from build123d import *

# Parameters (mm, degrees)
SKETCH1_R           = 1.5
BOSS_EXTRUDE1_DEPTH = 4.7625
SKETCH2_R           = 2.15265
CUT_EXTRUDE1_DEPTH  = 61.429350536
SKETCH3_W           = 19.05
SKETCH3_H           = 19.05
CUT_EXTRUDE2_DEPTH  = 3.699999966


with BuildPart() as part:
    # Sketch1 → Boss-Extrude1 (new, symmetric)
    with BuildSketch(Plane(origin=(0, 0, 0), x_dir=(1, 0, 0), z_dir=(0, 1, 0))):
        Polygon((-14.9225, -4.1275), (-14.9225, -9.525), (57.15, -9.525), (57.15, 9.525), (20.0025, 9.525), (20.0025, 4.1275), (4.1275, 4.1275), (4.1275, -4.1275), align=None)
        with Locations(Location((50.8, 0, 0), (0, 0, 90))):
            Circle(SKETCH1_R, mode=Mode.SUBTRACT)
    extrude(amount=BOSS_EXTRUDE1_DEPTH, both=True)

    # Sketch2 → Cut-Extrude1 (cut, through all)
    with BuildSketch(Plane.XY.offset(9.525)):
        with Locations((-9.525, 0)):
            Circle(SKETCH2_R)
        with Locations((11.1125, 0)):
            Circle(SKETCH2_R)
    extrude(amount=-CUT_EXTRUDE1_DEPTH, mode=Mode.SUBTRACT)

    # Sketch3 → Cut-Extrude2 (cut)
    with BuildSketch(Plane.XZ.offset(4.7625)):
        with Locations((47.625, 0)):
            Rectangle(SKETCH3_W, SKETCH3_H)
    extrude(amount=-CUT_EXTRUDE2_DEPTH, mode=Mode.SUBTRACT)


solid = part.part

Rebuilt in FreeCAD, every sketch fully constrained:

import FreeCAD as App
import Part
import Sketcher
Q = App.Units.Quantity

doc = App.newDocument("Part")
body = doc.addObject("PartDesign::Body", "Body")

sketch1 = doc.addObject("Sketcher::SketchObject", "Sketch")
body.addObject(sketch1)
sketch1.AttachmentSupport = (doc.XZ_Plane, [""])
sketch1.MapMode = "FlatFace"
sketch1.addGeometry([
    Part.LineSegment(App.Vector(-14.9225, 4.1275, 0), App.Vector(-14.9225, 9.525, 0)),
    Part.LineSegment(App.Vector(-14.9225, 9.525, 0), App.Vector(57.15, 9.525, 0)),
    Part.LineSegment(App.Vector(57.15, 9.525, 0), App.Vector(57.15, -9.525, 0)),
    Part.LineSegment(App.Vector(57.15, -9.525, 0), App.Vector(20.0025, -9.525, 0)),
    Part.LineSegment(App.Vector(20.0025, -9.525, 0), App.Vector(20.0025, -4.1275, 0)),
    Part.LineSegment(App.Vector(20.0025, -4.1275, 0), App.Vector(4.1275, -4.1275, 0)),
    Part.LineSegment(App.Vector(4.1275, -4.1275, 0), App.Vector(4.1275, 4.1275, 0)),
    Part.LineSegment(App.Vector(4.1275, 4.1275, 0), App.Vector(-14.9225, 4.1275, 0)),
    Part.Circle(App.Vector(50.8, 0, 0), App.Vector(0, 0, 1), 1.5),
], False)
sketch1.addConstraint([
    Sketcher.Constraint("Coincident", 0, 2, 1, 1),
    Sketcher.Constraint("Coincident", 1, 2, 2, 1),
    Sketcher.Constraint("Coincident", 2, 2, 3, 1),
    Sketcher.Constraint("Coincident", 3, 2, 4, 1),
    Sketcher.Constraint("Coincident", 4, 2, 5, 1),
    Sketcher.Constraint("Coincident", 5, 2, 6, 1),
    Sketcher.Constraint("Coincident", 6, 2, 7, 1),
    Sketcher.Constraint("Coincident", 7, 2, 0, 1),
    Sketcher.Constraint("Vertical", 0),
    Sketcher.Constraint("Horizontal", 1),
    Sketcher.Constraint("Vertical", 2),
    Sketcher.Constraint("Horizontal", 3),
    Sketcher.Constraint("Vertical", 4),
    Sketcher.Constraint("Horizontal", 5),
    Sketcher.Constraint("Vertical", 6),
    Sketcher.Constraint("Horizontal", 7),
    Sketcher.Constraint("PointOnObject", 8, 3, -1),
    Sketcher.Constraint("Equal", 7, 2),
    Sketcher.Constraint("Equal", 0, 4),
    Sketcher.Constraint("DistanceX", -1, 1, 8, 3, Q("2 in")),
    Sketcher.Constraint("DistanceX", 7, 2, 7, 1, Q("0.75 in")),
    Sketcher.Constraint("Diameter", 8, 3.0),
    Sketcher.Constraint("DistanceX", 5, 2, 5, 1, Q("0.625 in")),
    Sketcher.Constraint("DistanceY", 6, 1, 6, 2, Q("0.325 in")),
    Sketcher.Constraint("DistanceX", -1, 1, 1, 2, Q("2.25 in")),
    Sketcher.Constraint("DistanceX", 1, 1, 1, 2, Q("2.8375 in")),
    Sketcher.Constraint("DistanceY", -1, 1, 0, 2, Q("0.375 in")),
])
pad1 = doc.addObject("PartDesign::Pad", "Pad")
body.addObject(pad1)
pad1.Profile = sketch1
pad1.Length = Q("0.375 in")
pad1.Midplane = True

sketch2 = doc.addObject("Sketcher::SketchObject", "Sketch001")
body.addObject(sketch2)
sketch2.AttachmentSupport = (doc.XY_Plane, [""])
sketch2.MapMode = "FlatFace"
sketch2.AttachmentOffset = App.Placement(App.Vector(0, 0, 0.375 * 25.4), App.Rotation())
sketch2.addGeometry([
    Part.Circle(App.Vector(-9.525, 0, 0), App.Vector(0, 0, 1), 2.15265),
    Part.Circle(App.Vector(11.1125, 0, 0), App.Vector(0, 0, 1), 2.15265),
], False)
sketch2.addConstraint([
    Sketcher.Constraint("Equal", 0, 1),
    Sketcher.Constraint("PointOnObject", 0, 3, -1),
    Sketcher.Constraint("PointOnObject", 1, 3, -1),
    Sketcher.Constraint("Diameter", 0, Q("0.1695 in")),
    Sketcher.Constraint("DistanceX", 0, 3, -1, 1, Q("0.375 in")),
    Sketcher.Constraint("DistanceX", -1, 1, 1, 3, Q("0.4375 in")),
])
pocket1 = doc.addObject("PartDesign::Pocket", "Pocket")
body.addObject(pocket1)
pocket1.Profile = sketch2
pocket1.Type = "ThroughAll"

sketch3 = doc.addObject("Sketcher::SketchObject", "Sketch002")
body.addObject(sketch3)
sketch3.AttachmentSupport = (doc.XZ_Plane, [""])
sketch3.MapMode = "FlatFace"
sketch3.AttachmentOffset = App.Placement(App.Vector(0, 0, 0.1875 * 25.4), App.Rotation())
sketch3.addGeometry([
    Part.LineSegment(App.Vector(38.1, 9.525, 0), App.Vector(38.1, -9.525, 0)),
    Part.LineSegment(App.Vector(38.1, -9.525, 0), App.Vector(57.15, -9.525, 0)),
    Part.LineSegment(App.Vector(57.15, -9.525, 0), App.Vector(57.15, 9.525, 0)),
    Part.LineSegment(App.Vector(57.15, 9.525, 0), App.Vector(38.1, 9.525, 0)),
], False)
sketch3.addConstraint([
    Sketcher.Constraint("Coincident", 0, 2, 1, 1),
    Sketcher.Constraint("Coincident", 1, 2, 2, 1),
    Sketcher.Constraint("Coincident", 2, 2, 3, 1),
    Sketcher.Constraint("Coincident", 3, 2, 0, 1),
    Sketcher.Constraint("Vertical", 0),
    Sketcher.Constraint("Horizontal", 1),
    Sketcher.Constraint("Vertical", 2),
    Sketcher.Constraint("Horizontal", 3),
    Sketcher.Constraint("Equal", 3, 0),
    Sketcher.Constraint("DistanceX", 1, 1, 1, 2, Q("0.75 in")),
    Sketcher.Constraint("DistanceX", -1, 1, 0, 2, Q("1.5 in")),
    Sketcher.Constraint("DistanceY", 0, 2, -1, 1, Q("0.375 in")),
])
pocket2 = doc.addObject("PartDesign::Pocket", "Pocket001")
body.addObject(pocket2)
pocket2.Profile = sketch3
pocket2.Length = 3.7

doc.recompute()
